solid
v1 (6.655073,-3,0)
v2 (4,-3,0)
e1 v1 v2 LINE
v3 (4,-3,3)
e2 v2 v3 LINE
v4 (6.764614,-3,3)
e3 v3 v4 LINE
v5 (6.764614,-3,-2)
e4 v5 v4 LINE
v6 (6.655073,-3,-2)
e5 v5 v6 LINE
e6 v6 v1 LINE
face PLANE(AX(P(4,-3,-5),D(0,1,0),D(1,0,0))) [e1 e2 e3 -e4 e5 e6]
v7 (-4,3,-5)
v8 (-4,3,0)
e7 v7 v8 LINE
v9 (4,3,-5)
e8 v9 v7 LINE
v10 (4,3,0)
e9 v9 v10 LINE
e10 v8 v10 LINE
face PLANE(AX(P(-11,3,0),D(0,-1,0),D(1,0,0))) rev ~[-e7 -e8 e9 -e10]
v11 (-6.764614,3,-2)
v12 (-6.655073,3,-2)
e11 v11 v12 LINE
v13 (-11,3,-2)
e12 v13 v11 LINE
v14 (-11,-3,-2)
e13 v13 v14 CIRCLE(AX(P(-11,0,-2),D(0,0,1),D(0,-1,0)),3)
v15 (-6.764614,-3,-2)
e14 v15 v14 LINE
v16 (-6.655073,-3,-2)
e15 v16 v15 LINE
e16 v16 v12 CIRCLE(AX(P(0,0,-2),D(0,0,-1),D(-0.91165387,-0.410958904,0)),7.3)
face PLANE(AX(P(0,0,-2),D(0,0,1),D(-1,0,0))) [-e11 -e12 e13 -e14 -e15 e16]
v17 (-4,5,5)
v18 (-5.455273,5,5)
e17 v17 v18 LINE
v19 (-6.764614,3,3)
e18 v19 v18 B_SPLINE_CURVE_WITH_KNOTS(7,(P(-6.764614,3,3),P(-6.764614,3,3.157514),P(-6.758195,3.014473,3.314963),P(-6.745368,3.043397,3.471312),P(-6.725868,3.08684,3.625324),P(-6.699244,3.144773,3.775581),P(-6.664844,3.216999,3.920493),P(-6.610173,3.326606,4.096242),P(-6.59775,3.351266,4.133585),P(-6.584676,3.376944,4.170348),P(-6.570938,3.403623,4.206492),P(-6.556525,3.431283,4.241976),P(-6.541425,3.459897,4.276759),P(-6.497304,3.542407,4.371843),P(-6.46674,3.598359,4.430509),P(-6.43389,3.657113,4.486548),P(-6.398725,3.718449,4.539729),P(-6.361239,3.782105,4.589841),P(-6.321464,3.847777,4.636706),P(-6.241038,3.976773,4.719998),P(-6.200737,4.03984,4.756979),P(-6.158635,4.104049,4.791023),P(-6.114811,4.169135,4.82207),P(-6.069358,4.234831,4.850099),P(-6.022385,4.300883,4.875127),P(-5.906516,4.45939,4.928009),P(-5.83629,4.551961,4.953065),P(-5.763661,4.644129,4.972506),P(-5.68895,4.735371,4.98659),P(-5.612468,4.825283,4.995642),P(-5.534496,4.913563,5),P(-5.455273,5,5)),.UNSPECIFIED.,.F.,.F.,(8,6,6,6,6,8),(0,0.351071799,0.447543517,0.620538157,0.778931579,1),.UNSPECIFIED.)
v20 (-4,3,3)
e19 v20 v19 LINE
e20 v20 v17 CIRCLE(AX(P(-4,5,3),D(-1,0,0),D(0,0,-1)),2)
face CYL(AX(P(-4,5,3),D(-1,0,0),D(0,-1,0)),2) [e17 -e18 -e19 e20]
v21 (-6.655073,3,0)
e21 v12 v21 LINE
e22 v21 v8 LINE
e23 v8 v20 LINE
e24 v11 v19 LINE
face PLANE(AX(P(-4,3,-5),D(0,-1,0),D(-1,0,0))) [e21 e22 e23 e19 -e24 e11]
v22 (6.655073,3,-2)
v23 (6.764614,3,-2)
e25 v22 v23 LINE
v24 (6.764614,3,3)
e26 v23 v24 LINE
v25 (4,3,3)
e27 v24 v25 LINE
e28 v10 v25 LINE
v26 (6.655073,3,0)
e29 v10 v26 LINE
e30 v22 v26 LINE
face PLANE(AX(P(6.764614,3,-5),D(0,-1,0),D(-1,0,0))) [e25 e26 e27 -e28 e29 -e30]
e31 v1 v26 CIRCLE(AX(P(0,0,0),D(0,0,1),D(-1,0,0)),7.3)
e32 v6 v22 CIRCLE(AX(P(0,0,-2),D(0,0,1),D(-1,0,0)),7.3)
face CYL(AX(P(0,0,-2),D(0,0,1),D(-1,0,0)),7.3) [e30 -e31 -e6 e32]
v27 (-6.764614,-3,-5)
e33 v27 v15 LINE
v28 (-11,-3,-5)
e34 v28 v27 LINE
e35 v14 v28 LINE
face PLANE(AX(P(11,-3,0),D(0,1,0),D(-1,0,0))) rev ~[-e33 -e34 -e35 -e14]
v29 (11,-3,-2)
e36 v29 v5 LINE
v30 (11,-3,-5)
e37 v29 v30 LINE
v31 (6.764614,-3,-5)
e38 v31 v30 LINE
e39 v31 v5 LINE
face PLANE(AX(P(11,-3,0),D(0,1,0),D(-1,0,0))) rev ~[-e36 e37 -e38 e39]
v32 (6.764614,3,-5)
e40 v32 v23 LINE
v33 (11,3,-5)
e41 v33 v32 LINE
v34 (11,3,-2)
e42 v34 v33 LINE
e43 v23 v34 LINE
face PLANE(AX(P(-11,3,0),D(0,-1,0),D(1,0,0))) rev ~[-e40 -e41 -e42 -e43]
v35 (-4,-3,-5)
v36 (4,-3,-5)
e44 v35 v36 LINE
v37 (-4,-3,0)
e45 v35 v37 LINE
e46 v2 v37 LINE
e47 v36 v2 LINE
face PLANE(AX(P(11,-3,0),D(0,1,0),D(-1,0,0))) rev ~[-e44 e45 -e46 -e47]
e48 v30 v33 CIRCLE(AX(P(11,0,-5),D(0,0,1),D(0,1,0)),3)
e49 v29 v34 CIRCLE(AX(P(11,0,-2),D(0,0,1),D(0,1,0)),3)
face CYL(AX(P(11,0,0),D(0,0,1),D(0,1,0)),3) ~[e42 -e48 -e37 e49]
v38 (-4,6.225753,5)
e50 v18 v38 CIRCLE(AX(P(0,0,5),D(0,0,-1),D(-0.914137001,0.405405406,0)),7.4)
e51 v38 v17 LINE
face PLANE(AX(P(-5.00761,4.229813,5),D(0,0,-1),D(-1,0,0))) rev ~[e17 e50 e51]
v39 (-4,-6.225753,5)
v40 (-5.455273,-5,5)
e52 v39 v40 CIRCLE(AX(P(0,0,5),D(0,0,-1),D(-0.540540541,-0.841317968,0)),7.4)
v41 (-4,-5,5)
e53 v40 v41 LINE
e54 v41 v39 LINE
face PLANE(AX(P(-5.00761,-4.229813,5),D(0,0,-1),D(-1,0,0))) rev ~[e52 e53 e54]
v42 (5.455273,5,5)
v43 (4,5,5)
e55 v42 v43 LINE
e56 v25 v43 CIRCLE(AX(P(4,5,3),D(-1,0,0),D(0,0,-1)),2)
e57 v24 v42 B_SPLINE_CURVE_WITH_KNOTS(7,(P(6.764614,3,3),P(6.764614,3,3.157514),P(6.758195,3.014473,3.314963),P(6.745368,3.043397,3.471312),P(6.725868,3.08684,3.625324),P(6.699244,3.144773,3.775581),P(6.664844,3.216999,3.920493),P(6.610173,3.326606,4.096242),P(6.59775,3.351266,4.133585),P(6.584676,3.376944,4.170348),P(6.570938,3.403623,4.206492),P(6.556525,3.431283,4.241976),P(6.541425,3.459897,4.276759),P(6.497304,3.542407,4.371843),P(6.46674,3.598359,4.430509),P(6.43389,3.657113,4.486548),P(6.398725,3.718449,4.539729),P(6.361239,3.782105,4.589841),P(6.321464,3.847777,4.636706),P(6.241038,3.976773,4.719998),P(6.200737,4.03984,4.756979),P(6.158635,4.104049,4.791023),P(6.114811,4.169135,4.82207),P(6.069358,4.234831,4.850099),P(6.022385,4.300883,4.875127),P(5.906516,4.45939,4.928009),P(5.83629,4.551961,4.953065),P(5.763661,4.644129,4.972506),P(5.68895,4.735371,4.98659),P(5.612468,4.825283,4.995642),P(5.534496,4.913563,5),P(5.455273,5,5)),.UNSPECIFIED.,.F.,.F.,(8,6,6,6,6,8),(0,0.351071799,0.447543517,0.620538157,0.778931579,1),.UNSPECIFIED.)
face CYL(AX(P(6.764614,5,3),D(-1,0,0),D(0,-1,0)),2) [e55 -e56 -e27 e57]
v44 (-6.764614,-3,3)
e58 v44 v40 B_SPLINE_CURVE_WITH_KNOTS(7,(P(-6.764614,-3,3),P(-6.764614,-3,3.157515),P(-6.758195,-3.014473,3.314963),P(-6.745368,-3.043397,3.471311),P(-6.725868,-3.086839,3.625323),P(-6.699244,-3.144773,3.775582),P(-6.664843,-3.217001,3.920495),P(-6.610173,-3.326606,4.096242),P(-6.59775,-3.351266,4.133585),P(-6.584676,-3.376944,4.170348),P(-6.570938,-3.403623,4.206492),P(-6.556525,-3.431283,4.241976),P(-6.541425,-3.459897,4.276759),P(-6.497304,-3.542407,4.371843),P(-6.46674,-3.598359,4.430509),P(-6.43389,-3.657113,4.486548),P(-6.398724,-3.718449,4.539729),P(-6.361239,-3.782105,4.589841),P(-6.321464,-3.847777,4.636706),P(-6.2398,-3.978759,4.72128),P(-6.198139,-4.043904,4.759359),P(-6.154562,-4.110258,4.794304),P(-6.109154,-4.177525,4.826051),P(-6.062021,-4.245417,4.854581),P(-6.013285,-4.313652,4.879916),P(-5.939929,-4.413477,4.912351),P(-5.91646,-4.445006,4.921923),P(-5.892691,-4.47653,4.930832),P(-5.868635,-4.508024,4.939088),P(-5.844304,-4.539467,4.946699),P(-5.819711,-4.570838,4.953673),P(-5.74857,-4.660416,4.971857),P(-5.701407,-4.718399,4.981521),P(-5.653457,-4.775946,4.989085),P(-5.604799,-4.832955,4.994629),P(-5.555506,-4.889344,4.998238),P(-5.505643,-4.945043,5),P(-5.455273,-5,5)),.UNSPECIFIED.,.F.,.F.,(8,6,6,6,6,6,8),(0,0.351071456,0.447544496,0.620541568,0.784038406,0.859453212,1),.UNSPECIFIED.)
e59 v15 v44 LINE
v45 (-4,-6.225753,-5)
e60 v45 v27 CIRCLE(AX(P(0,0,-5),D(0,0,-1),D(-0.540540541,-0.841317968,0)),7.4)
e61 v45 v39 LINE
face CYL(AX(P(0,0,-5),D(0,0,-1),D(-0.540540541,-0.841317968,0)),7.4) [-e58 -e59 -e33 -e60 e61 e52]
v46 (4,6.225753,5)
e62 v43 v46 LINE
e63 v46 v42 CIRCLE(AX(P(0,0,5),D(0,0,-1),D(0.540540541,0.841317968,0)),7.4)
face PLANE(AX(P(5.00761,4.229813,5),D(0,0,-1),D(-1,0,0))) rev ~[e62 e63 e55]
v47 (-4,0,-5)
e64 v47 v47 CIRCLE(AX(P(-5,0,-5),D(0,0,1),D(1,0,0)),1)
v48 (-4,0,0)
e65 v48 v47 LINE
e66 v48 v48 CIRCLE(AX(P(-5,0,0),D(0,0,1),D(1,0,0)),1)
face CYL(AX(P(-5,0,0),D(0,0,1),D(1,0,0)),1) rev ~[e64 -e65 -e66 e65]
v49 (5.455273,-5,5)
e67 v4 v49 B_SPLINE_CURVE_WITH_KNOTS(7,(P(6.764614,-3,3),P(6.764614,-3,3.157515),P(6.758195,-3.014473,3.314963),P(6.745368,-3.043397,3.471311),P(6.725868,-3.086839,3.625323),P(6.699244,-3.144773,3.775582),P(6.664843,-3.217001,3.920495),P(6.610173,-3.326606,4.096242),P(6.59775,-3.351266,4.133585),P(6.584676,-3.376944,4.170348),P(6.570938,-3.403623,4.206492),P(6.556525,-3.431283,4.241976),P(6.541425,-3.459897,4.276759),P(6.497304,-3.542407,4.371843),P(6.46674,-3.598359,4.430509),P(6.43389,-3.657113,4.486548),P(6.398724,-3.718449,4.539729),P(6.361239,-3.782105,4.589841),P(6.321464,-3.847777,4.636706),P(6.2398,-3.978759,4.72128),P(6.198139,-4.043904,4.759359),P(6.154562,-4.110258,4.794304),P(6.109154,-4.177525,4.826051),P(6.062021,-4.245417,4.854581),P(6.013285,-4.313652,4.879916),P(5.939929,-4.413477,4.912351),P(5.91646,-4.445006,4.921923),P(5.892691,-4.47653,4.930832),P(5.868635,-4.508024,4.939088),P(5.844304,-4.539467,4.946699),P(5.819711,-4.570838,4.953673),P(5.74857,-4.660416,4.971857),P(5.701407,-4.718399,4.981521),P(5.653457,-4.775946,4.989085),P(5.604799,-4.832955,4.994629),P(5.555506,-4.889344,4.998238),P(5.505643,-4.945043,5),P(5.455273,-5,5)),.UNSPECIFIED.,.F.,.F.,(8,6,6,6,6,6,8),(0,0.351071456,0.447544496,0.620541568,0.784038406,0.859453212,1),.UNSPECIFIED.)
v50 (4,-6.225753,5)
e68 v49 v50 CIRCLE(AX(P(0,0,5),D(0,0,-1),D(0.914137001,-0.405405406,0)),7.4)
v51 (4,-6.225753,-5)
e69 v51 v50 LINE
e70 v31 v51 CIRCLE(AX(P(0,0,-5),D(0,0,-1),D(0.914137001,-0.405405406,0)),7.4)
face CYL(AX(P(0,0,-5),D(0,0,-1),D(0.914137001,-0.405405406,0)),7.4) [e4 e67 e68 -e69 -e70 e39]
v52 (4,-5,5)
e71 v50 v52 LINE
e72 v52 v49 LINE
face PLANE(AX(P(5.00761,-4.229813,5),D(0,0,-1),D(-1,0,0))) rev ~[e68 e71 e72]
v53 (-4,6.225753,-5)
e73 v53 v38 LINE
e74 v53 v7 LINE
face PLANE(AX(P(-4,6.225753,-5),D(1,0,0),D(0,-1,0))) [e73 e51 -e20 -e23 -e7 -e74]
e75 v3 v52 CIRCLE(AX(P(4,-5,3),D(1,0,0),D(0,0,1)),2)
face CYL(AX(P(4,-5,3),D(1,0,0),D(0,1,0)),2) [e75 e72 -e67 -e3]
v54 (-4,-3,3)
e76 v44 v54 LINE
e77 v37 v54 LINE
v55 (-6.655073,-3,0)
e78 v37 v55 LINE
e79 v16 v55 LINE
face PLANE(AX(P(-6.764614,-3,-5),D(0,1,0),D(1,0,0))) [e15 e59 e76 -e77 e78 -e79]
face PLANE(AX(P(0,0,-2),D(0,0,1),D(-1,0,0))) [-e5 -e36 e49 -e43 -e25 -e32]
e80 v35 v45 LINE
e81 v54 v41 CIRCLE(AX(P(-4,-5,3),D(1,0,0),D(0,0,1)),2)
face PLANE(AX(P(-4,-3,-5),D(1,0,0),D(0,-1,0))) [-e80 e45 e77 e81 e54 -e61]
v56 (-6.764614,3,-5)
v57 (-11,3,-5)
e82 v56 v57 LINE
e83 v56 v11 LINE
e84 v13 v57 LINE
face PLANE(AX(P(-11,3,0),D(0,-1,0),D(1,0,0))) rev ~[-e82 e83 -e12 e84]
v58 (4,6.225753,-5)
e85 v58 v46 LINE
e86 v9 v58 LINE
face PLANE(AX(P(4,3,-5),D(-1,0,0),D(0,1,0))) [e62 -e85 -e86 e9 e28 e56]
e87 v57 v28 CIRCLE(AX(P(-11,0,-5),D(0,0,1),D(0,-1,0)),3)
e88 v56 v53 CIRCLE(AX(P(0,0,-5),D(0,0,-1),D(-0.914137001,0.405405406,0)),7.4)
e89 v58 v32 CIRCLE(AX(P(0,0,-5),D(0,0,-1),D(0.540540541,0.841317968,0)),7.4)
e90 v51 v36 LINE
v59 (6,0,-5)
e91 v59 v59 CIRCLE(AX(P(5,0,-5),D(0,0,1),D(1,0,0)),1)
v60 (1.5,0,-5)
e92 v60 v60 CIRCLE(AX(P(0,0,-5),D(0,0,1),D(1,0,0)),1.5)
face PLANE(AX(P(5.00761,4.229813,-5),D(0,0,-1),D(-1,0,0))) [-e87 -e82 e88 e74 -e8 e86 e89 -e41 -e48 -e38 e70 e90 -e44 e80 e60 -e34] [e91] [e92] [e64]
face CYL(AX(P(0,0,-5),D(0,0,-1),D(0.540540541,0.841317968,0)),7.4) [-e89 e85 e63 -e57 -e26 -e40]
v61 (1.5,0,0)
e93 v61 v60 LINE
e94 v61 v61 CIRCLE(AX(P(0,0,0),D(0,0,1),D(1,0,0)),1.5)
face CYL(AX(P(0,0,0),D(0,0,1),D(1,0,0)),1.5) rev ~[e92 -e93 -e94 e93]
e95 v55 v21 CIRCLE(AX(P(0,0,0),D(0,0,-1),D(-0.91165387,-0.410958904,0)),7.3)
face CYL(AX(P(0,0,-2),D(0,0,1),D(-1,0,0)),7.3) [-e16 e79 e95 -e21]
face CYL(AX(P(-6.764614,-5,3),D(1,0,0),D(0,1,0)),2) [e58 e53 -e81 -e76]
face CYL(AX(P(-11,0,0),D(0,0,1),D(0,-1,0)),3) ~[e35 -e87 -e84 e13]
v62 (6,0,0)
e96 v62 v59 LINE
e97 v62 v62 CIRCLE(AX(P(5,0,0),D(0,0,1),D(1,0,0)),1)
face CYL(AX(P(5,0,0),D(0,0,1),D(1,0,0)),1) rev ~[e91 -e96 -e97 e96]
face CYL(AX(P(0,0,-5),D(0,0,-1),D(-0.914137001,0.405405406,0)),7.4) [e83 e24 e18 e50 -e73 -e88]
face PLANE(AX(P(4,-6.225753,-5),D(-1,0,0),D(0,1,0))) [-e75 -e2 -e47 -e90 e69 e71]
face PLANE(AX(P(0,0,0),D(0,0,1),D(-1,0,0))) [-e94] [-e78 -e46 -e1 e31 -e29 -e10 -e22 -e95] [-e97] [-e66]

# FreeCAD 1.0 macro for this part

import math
import FreeCAD as App
import Part
import Sketcher

V = App.Vector


def edges_at(feature, points):
    """Names of the edges that pass closest to the given points."""
    edges = feature.Shape.Edges
    near = lambda p: min(range(len(edges)), key=lambda i: edges[i].distToShape(Part.Vertex(*p))[0])
    return sorted({f"Edge{near(p) + 1}" for p in points})

doc = App.newDocument("Part")
params = doc.addObject("Spreadsheet::Sheet", "Params")
for row, (alias, value) in enumerate([
    ("sketch1_width", "20 mm"),
    ("sketch1_height", "5 mm"),
    ("sketch1_height2", "2 mm"),
    ("sketch1_width2", "7.3 mm"),
    ("revolution_angle", "360 deg"),
    ("sketch2_radius", "3 mm"),
    ("sketch2_width", "22 mm"),
    ("pocket1_length", "10 mm"),
    ("sketch3_diameter", "3 mm"),
    ("sketch3_diameter2", "2 mm"),
    ("sketch4_radius", "7.4 mm"),
    ("pad1_length", "10 mm"),
    ("fillet_radius", "2 mm"),
], start=1):
    params.set(f"A{row}", alias)
    params.set(f"B{row}", "=" + value)
    params.setAlias(f"B{row}", alias)

body = doc.addObject("PartDesign::Body", "Body")

# Sketch on XZ plane
sketch1 = body.newObject("Sketcher::SketchObject", "Sketch")
sketch1.AttachmentSupport = (doc.getObject("XZ_Plane"), [""])
sketch1.MapMode = "FlatFace"
sketch1.addGeometry(Part.LineSegment(V(0, -5, 0), V(0, 0, 0)), False)
sketch1.addGeometry(Part.LineSegment(V(0, 0, 0), V(7.3, 0, 0)), False)
sketch1.addGeometry(Part.LineSegment(V(7.3, 0, 0), V(7.3, -2, 0)), False)
sketch1.addGeometry(Part.LineSegment(V(7.3, -2, 0), V(20, -2, 0)), False)
sketch1.addGeometry(Part.LineSegment(V(20, -2, 0), V(20, -5, 0)), False)
sketch1.addGeometry(Part.LineSegment(V(20, -5, 0), V(0, -5, 0)), False)
sketch1.addConstraint(Sketcher.Constraint("Coincident", 0, 2, 1, 1))
sketch1.addConstraint(Sketcher.Constraint("Coincident", 1, 2, 2, 1))
sketch1.addConstraint(Sketcher.Constraint("Coincident", 2, 2, 3, 1))
sketch1.addConstraint(Sketcher.Constraint("Coincident", 3, 2, 4, 1))
sketch1.addConstraint(Sketcher.Constraint("Coincident", 4, 2, 5, 1))
sketch1.addConstraint(Sketcher.Constraint("Coincident", 5, 2, 0, 1))
sketch1.addConstraint(Sketcher.Constraint("Vertical", 0))
sketch1.addConstraint(Sketcher.Constraint("Horizontal", 1))
sketch1.addConstraint(Sketcher.Constraint("Vertical", 2))
sketch1.addConstraint(Sketcher.Constraint("Horizontal", 3))
sketch1.addConstraint(Sketcher.Constraint("Vertical", 4))
sketch1.addConstraint(Sketcher.Constraint("Horizontal", 5))
sketch1.addConstraint(Sketcher.Constraint("Coincident", 0, 2, -1, 1))
sketch1.addConstraint(Sketcher.Constraint("DistanceX", 5, 2, 5, 1, 20.0))
sketch1.addConstraint(Sketcher.Constraint("DistanceY", 0, 1, 0, 2, 5.0))
sketch1.addConstraint(Sketcher.Constraint("DistanceY", 2, 2, 2, 1, 2.0))
sketch1.addConstraint(Sketcher.Constraint("DistanceX", 1, 1, 1, 2, 7.3))
sketch1.setExpression("Constraints[13]", "Params.sketch1_width")
sketch1.setExpression("Constraints[14]", "Params.sketch1_height")
sketch1.setExpression("Constraints[15]", "Params.sketch1_height2")
sketch1.setExpression("Constraints[16]", "Params.sketch1_width2")
revolution = body.newObject("PartDesign::Revolution", "Revolution")
revolution.Profile = sketch1
revolution.ReferenceAxis = (sketch1, ["V_Axis"])
revolution.setExpression("Angle", "Params.revolution_angle")

# Sketch on XY plane
sketch2 = body.newObject("Sketcher::SketchObject", "Sketch001")
sketch2.AttachmentSupport = (doc.getObject("XY_Plane"), [""])
sketch2.MapMode = "FlatFace"
sketch2.addGeometry(Part.LineSegment(V(-24.8, 22, 0), V(-24.8, -22, 0)), False)
sketch2.addGeometry(Part.LineSegment(V(-24.8, -22, 0), V(24.8, -22, 0)), False)
sketch2.addGeometry(Part.LineSegment(V(24.8, -22, 0), V(24.8, 22, 0)), False)
sketch2.addGeometry(Part.LineSegment(V(24.8, 22, 0), V(-24.8, 22, 0)), False)
sketch2.addGeometry(Part.ArcOfCircle(Part.Circle(V(11, 0, 0), V(0, 0, 1), 3), math.radians(-90), math.radians(90)), False)
sketch2.addGeometry(Part.LineSegment(V(11, -3, 0), V(-11, -3, 0)), False)
sketch2.addGeometry(Part.ArcOfCircle(Part.Circle(V(-11, 0, 0), V(0, 0, 1), 3), math.radians(90), math.radians(270)), False)
sketch2.addGeometry(Part.LineSegment(V(-11, 3, 0), V(11, 3, 0)), False)
sketch2.addConstraint(Sketcher.Constraint("Coincident", 0, 2, 1, 1))
sketch2.addConstraint(Sketcher.Constraint("Coincident", 1, 2, 2, 1))
sketch2.addConstraint(Sketcher.Constraint("Coincident", 2, 2, 3, 1))
sketch2.addConstraint(Sketcher.Constraint("Coincident", 3, 2, 0, 1))
sketch2.addConstraint(Sketcher.Constraint("Tangent", 4, 1, 5, 1))
sketch2.addConstraint(Sketcher.Constraint("Tangent", 5, 2, 6, 2))
sketch2.addConstraint(Sketcher.Constraint("Tangent", 6, 1, 7, 1))
sketch2.addConstraint(Sketcher.Constraint("Tangent", 7, 2, 4, 2))
sketch2.addConstraint(Sketcher.Constraint("Vertical", 0))
sketch2.addConstraint(Sketcher.Constraint("Horizontal", 1))
sketch2.addConstraint(Sketcher.Constraint("Vertical", 2))
sketch2.addConstraint(Sketcher.Constraint("Horizontal", 3))
sketch2.addConstraint(Sketcher.Constraint("Horizontal", 5))
sketch2.addConstraint(Sketcher.Constraint("Horizontal", 7))
sketch2.addConstraint(Sketcher.Constraint("Symmetric", 4, 3, 6, 3, -1, 1))
sketch2.addConstraint(Sketcher.Constraint("Symmetric", 0, 2, 2, 2, -1, 1))
sketch2.addConstraint(Sketcher.Constraint("Radius", 4, 3.0))
sketch2.addConstraint(Sketcher.Constraint("DistanceX", 5, 2, 5, 1, 22.0))
sketch2.addConstraint(Sketcher.Constraint("DistanceY", 0, 2, 0, 1, 43.948009))
sketch2.addConstraint(Sketcher.Constraint("DistanceX", 1, 1, 1, 2, 49.662428))
sketch2.setExpression("Constraints[16]", "Params.sketch2_radius")
sketch2.setExpression("Constraints[17]", "Params.sketch2_width")
pocket1 = body.newObject("PartDesign::Pocket", "Pocket")
pocket1.Profile = sketch2
pocket1.setExpression("Length", "Params.pocket1_length")

# Sketch on XY plane
sketch3 = body.newObject("Sketcher::SketchObject", "Sketch002")
sketch3.AttachmentSupport = (doc.getObject("XY_Plane"), [""])
sketch3.MapMode = "FlatFace"
sketch3.addGeometry(Part.Circle(V(0, 0, 0), V(0, 0, 1), 1.5), False)
sketch3.addGeometry(Part.Circle(V(5, 0, 0), V(0, 0, 1), 1), False)
sketch3.addGeometry(Part.Circle(V(-5, 0, 0), V(0, 0, 1), 1), False)
sketch3.addConstraint(Sketcher.Constraint("Coincident", 0, 3, -1, 1))
sketch3.addConstraint(Sketcher.Constraint("Equal", 1, 2))
sketch3.addConstraint(Sketcher.Constraint("Symmetric", 1, 3, 2, 3, -1, 1))
sketch3.addConstraint(Sketcher.Constraint("PointOnObject", 1, 3, -1))
sketch3.addConstraint(Sketcher.Constraint("Diameter", 0, 3.0))
sketch3.addConstraint(Sketcher.Constraint("Diameter", 1, 2.0))
sketch3.addConstraint(Sketcher.Constraint("DistanceX", -1, 1, 1, 3, 5.0))
sketch3.setExpression("Constraints[4]", "Params.sketch3_diameter")
sketch3.setExpression("Constraints[5]", "Params.sketch3_diameter2")
pocket2 = body.newObject("PartDesign::Pocket", "Pocket001")
pocket2.Profile = sketch3
pocket2.Type = "ThroughAll"

# Sketch on XY plane
sketch4 = body.newObject("Sketcher::SketchObject", "Sketch003")
sketch4.AttachmentSupport = (doc.getObject("XY_Plane"), [""])
sketch4.MapMode = "FlatFace"
sketch4.AttachmentOffset = App.Placement(V(0, 0, -5), App.Rotation())
sketch4.addGeometry(Part.LineSegment(V(4, 3, 0), V(4, 6.2, 0)), False)
sketch4.addGeometry(Part.ArcOfCircle(Part.Circle(V(0, 0, 0), V(0, 0, 1), 7.4), math.radians(24), math.radians(57)), False)
sketch4.addGeometry(Part.LineSegment(V(6.8, 3, 0), V(4, 3, 0)), False)
sketch4.addGeometry(Part.ArcOfCircle(Part.Circle(V(0, 0, 0), V(0, 0, 1), 7.4), math.radians(123), math.radians(156)), False)
sketch4.addGeometry(Part.LineSegment(V(-4, 6.2, 0), V(-4, 3, 0)), False)
sketch4.addGeometry(Part.LineSegment(V(-4, 3, 0), V(-6.8, 3, 0)), False)
sketch4.addGeometry(Part.LineSegment(V(-6.8, -3, 0), V(-4, -3, 0)), False)
sketch4.addGeometry(Part.LineSegment(V(-4, -3, 0), V(-4, -6.2, 0)), False)
sketch4.addGeometry(Part.ArcOfCircle(Part.Circle(V(0, 0, 0), V(0, 0, 1), 7.4), math.radians(-156), math.radians(-123)), False)
sketch4.addGeometry(Part.LineSegment(V(4, -6.2, 0), V(4, -3, 0)), False)
sketch4.addGeometry(Part.LineSegment(V(4, -3, 0), V(6.8, -3, 0)), False)
sketch4.addGeometry(Part.ArcOfCircle(Part.Circle(V(0, 0, 0), V(0, 0, 1), 7.4), math.radians(-57), math.radians(-24)), False)
sketch4.addConstraint(Sketcher.Constraint("Coincident", 0, 2, 1, 2))
sketch4.addConstraint(Sketcher.Constraint("Coincident", 1, 1, 2, 1))
sketch4.addConstraint(Sketcher.Constraint("Coincident", 2, 2, 0, 1))
sketch4.addConstraint(Sketcher.Constraint("Coincident", 3, 1, 4, 1))
sketch4.addConstraint(Sketcher.Constraint("Coincident", 4, 2, 5, 1))
sketch4.addConstraint(Sketcher.Constraint("Coincident", 5, 2, 3, 2))
sketch4.addConstraint(Sketcher.Constraint("Coincident", 6, 2, 7, 1))
sketch4.addConstraint(Sketcher.Constraint("Coincident", 7, 2, 8, 2))
sketch4.addConstraint(Sketcher.Constraint("Coincident", 8, 1, 6, 1))
sketch4.addConstraint(Sketcher.Constraint("Coincident", 9, 2, 10, 1))
sketch4.addConstraint(Sketcher.Constraint("Coincident", 10, 2, 11, 2))
sketch4.addConstraint(Sketcher.Constraint("Coincident", 11, 1, 9, 1))
sketch4.addConstraint(Sketcher.Constraint("Vertical", 0))
sketch4.addConstraint(Sketcher.Constraint("Horizontal", 2))
sketch4.addConstraint(Sketcher.Constraint("Vertical", 4))
sketch4.addConstraint(Sketcher.Constraint("Horizontal", 5))
sketch4.addConstraint(Sketcher.Constraint("Horizontal", 6))
sketch4.addConstraint(Sketcher.Constraint("Vertical", 7))
sketch4.addConstraint(Sketcher.Constraint("Vertical", 9))
sketch4.addConstraint(Sketcher.Constraint("Horizontal", 10))
sketch4.addConstraint(Sketcher.Constraint("Coincident", 1, 3, -1, 1))
sketch4.addConstraint(Sketcher.Constraint("Coincident", 3, 3, -1, 1))
sketch4.addConstraint(Sketcher.Constraint("Coincident", 8, 3, -1, 1))
sketch4.addConstraint(Sketcher.Constraint("Coincident", 11, 3, -1, 1))
sketch4.addConstraint(Sketcher.Constraint("Equal", 1, 3))
sketch4.addConstraint(Sketcher.Constraint("Equal", 3, 8))
sketch4.addConstraint(Sketcher.Constraint("Equal", 8, 11))
sketch4.addConstraint(Sketcher.Constraint("Symmetric", 2, 2, 6, 2, -1, 1))
sketch4.addConstraint(Sketcher.Constraint("Symmetric", 4, 2, 9, 2, -1, 1))
sketch4.addConstraint(Sketcher.Constraint("Symmetric", 2, 2, 4, 2, -2))
sketch4.addConstraint(Sketcher.Constraint("Radius", 1, 7.4))
sketch4.addConstraint(Sketcher.Constraint("DistanceX", -1, 1, 0, 2, 4.0))
sketch4.addConstraint(Sketcher.Constraint("DistanceY", -1, 1, 1, 1, 3.0))
sketch4.setExpression("Constraints[30]", "Params.sketch4_radius")
pad1 = body.newObject("PartDesign::Pad", "Pad")
pad1.Profile = sketch4
pad1.setExpression("Length", "Params.pad1_length")
doc.recompute()

fillet = body.newObject("PartDesign::Fillet", "Fillet")
fillet.Base = (pad1, edges_at(pad1, [
    (5.382, -3, 5),
    (5.382, 3, 5),
    (-5.382, 3, 5),
    (-5.382, -3, 5),
]))
fillet.setExpression("Radius", "Params.fillet_radius")

doc.recompute()
